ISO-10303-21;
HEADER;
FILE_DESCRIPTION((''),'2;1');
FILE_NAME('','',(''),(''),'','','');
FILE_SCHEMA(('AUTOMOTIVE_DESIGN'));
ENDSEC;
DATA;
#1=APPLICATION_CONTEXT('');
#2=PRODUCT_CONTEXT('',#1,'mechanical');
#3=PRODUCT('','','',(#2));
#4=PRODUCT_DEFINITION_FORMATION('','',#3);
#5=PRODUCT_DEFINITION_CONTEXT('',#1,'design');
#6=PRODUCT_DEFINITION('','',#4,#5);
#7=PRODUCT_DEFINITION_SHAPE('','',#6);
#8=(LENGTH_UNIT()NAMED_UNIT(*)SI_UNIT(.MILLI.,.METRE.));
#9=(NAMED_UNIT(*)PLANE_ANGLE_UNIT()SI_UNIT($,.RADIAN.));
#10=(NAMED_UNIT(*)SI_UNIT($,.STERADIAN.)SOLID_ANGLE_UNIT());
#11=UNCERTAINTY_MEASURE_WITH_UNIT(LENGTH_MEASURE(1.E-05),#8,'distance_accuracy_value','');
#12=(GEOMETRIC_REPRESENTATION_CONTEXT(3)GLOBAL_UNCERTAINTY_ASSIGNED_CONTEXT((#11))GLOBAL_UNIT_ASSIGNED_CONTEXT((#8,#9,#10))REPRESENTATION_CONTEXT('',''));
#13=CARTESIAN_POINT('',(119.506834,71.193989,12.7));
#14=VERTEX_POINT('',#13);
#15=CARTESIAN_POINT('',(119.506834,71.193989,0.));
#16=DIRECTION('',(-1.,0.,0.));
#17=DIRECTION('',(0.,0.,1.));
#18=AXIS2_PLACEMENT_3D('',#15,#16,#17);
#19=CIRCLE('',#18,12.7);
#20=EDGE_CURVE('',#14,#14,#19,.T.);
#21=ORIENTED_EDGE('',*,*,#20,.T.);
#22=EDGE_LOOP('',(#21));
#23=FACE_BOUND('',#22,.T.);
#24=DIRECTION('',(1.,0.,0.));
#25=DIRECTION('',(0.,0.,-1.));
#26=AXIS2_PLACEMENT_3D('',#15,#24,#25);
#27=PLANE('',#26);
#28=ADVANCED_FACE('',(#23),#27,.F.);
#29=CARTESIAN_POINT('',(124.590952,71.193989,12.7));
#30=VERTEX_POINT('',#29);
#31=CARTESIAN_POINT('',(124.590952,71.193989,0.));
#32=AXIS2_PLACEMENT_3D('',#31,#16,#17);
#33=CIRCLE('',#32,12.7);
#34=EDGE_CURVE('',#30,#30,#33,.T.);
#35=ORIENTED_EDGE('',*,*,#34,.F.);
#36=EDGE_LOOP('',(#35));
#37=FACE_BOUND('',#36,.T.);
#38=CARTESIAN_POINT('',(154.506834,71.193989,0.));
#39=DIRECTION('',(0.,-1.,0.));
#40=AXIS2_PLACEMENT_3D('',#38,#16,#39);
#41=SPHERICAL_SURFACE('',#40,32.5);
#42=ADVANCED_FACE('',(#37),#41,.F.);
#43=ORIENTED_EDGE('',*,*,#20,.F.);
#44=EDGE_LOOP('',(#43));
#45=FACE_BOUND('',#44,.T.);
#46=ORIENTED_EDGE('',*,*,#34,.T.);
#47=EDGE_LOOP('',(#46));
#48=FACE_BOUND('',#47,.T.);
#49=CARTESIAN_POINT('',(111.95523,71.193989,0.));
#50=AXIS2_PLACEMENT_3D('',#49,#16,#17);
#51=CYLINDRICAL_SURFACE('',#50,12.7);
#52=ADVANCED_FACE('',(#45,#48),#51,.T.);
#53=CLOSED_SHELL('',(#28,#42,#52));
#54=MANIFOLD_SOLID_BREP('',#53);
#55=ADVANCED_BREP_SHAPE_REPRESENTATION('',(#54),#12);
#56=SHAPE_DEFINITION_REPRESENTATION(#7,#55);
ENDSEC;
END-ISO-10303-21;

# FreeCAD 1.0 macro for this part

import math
import FreeCAD as App
import Part
import Sketcher

doc = App.newDocument("Part")
body = doc.addObject("PartDesign::Body", "Body")

# Sketch on XY plane
sketch1 = doc.addObject("Sketcher::SketchObject", "Sketch")
body.addObject(sketch1)
sketch1.AttachmentSupport = (doc.XY_Plane, [""])
sketch1.MapMode = "FlatFace"
sketch1.addGeometry([
    Part.LineSegment(App.Vector(119.5, 83.9, 0), App.Vector(119.5, 71.2, 0)),
    Part.LineSegment(App.Vector(119.5, 71.2, 0), App.Vector(122, 71.2, 0)),
    Part.ArcOfCircle(Part.Circle(App.Vector(154.5, 71.2, 0), App.Vector(0, 0, 1), 32.5), math.radians(157), math.radians(180)),
    Part.LineSegment(App.Vector(124.6, 83.9, 0), App.Vector(119.5, 83.9, 0)),
], False)
sketch1.addGeometry(Part.LineSegment(App.Vector(119.5, 71.2, 0), App.Vector(154.5, 71.2, 0)), True)  # axis
sketch1.addConstraint([
    Sketcher.Constraint("Coincident", 0, 2, 1, 1),
    Sketcher.Constraint("Coincident", 1, 2, 2, 2),
    Sketcher.Constraint("Coincident", 2, 1, 3, 1),
    Sketcher.Constraint("Coincident", 3, 2, 0, 1),
    Sketcher.Constraint("Vertical", 0),
    Sketcher.Constraint("Horizontal", 1),
    Sketcher.Constraint("Horizontal", 3),
    Sketcher.Constraint("Horizontal", 4),
    Sketcher.Constraint("Coincident", 4, 1, 0, 2),
    Sketcher.Constraint("Coincident", 4, 2, 2, 3),
    Sketcher.Constraint("Radius", 2, 32.5),
    Sketcher.Constraint("DistanceX", 4, 1, 4, 2, 35.0),
    Sketcher.Constraint("DistanceY", 0, 2, 0, 1, 12.7),
    Sketcher.Constraint("DistanceY", -1, 1, 2, 3, 71.193989),
    Sketcher.Constraint("DistanceX", -1, 1, 2, 3, 154.506834),
])
revolution = doc.addObject("PartDesign::Revolution", "Revolution")
body.addObject(revolution)
revolution.Profile = sketch1
revolution.ReferenceAxis = (sketch1, ["Axis0"])
revolution.Angle = 360

doc.recompute()
